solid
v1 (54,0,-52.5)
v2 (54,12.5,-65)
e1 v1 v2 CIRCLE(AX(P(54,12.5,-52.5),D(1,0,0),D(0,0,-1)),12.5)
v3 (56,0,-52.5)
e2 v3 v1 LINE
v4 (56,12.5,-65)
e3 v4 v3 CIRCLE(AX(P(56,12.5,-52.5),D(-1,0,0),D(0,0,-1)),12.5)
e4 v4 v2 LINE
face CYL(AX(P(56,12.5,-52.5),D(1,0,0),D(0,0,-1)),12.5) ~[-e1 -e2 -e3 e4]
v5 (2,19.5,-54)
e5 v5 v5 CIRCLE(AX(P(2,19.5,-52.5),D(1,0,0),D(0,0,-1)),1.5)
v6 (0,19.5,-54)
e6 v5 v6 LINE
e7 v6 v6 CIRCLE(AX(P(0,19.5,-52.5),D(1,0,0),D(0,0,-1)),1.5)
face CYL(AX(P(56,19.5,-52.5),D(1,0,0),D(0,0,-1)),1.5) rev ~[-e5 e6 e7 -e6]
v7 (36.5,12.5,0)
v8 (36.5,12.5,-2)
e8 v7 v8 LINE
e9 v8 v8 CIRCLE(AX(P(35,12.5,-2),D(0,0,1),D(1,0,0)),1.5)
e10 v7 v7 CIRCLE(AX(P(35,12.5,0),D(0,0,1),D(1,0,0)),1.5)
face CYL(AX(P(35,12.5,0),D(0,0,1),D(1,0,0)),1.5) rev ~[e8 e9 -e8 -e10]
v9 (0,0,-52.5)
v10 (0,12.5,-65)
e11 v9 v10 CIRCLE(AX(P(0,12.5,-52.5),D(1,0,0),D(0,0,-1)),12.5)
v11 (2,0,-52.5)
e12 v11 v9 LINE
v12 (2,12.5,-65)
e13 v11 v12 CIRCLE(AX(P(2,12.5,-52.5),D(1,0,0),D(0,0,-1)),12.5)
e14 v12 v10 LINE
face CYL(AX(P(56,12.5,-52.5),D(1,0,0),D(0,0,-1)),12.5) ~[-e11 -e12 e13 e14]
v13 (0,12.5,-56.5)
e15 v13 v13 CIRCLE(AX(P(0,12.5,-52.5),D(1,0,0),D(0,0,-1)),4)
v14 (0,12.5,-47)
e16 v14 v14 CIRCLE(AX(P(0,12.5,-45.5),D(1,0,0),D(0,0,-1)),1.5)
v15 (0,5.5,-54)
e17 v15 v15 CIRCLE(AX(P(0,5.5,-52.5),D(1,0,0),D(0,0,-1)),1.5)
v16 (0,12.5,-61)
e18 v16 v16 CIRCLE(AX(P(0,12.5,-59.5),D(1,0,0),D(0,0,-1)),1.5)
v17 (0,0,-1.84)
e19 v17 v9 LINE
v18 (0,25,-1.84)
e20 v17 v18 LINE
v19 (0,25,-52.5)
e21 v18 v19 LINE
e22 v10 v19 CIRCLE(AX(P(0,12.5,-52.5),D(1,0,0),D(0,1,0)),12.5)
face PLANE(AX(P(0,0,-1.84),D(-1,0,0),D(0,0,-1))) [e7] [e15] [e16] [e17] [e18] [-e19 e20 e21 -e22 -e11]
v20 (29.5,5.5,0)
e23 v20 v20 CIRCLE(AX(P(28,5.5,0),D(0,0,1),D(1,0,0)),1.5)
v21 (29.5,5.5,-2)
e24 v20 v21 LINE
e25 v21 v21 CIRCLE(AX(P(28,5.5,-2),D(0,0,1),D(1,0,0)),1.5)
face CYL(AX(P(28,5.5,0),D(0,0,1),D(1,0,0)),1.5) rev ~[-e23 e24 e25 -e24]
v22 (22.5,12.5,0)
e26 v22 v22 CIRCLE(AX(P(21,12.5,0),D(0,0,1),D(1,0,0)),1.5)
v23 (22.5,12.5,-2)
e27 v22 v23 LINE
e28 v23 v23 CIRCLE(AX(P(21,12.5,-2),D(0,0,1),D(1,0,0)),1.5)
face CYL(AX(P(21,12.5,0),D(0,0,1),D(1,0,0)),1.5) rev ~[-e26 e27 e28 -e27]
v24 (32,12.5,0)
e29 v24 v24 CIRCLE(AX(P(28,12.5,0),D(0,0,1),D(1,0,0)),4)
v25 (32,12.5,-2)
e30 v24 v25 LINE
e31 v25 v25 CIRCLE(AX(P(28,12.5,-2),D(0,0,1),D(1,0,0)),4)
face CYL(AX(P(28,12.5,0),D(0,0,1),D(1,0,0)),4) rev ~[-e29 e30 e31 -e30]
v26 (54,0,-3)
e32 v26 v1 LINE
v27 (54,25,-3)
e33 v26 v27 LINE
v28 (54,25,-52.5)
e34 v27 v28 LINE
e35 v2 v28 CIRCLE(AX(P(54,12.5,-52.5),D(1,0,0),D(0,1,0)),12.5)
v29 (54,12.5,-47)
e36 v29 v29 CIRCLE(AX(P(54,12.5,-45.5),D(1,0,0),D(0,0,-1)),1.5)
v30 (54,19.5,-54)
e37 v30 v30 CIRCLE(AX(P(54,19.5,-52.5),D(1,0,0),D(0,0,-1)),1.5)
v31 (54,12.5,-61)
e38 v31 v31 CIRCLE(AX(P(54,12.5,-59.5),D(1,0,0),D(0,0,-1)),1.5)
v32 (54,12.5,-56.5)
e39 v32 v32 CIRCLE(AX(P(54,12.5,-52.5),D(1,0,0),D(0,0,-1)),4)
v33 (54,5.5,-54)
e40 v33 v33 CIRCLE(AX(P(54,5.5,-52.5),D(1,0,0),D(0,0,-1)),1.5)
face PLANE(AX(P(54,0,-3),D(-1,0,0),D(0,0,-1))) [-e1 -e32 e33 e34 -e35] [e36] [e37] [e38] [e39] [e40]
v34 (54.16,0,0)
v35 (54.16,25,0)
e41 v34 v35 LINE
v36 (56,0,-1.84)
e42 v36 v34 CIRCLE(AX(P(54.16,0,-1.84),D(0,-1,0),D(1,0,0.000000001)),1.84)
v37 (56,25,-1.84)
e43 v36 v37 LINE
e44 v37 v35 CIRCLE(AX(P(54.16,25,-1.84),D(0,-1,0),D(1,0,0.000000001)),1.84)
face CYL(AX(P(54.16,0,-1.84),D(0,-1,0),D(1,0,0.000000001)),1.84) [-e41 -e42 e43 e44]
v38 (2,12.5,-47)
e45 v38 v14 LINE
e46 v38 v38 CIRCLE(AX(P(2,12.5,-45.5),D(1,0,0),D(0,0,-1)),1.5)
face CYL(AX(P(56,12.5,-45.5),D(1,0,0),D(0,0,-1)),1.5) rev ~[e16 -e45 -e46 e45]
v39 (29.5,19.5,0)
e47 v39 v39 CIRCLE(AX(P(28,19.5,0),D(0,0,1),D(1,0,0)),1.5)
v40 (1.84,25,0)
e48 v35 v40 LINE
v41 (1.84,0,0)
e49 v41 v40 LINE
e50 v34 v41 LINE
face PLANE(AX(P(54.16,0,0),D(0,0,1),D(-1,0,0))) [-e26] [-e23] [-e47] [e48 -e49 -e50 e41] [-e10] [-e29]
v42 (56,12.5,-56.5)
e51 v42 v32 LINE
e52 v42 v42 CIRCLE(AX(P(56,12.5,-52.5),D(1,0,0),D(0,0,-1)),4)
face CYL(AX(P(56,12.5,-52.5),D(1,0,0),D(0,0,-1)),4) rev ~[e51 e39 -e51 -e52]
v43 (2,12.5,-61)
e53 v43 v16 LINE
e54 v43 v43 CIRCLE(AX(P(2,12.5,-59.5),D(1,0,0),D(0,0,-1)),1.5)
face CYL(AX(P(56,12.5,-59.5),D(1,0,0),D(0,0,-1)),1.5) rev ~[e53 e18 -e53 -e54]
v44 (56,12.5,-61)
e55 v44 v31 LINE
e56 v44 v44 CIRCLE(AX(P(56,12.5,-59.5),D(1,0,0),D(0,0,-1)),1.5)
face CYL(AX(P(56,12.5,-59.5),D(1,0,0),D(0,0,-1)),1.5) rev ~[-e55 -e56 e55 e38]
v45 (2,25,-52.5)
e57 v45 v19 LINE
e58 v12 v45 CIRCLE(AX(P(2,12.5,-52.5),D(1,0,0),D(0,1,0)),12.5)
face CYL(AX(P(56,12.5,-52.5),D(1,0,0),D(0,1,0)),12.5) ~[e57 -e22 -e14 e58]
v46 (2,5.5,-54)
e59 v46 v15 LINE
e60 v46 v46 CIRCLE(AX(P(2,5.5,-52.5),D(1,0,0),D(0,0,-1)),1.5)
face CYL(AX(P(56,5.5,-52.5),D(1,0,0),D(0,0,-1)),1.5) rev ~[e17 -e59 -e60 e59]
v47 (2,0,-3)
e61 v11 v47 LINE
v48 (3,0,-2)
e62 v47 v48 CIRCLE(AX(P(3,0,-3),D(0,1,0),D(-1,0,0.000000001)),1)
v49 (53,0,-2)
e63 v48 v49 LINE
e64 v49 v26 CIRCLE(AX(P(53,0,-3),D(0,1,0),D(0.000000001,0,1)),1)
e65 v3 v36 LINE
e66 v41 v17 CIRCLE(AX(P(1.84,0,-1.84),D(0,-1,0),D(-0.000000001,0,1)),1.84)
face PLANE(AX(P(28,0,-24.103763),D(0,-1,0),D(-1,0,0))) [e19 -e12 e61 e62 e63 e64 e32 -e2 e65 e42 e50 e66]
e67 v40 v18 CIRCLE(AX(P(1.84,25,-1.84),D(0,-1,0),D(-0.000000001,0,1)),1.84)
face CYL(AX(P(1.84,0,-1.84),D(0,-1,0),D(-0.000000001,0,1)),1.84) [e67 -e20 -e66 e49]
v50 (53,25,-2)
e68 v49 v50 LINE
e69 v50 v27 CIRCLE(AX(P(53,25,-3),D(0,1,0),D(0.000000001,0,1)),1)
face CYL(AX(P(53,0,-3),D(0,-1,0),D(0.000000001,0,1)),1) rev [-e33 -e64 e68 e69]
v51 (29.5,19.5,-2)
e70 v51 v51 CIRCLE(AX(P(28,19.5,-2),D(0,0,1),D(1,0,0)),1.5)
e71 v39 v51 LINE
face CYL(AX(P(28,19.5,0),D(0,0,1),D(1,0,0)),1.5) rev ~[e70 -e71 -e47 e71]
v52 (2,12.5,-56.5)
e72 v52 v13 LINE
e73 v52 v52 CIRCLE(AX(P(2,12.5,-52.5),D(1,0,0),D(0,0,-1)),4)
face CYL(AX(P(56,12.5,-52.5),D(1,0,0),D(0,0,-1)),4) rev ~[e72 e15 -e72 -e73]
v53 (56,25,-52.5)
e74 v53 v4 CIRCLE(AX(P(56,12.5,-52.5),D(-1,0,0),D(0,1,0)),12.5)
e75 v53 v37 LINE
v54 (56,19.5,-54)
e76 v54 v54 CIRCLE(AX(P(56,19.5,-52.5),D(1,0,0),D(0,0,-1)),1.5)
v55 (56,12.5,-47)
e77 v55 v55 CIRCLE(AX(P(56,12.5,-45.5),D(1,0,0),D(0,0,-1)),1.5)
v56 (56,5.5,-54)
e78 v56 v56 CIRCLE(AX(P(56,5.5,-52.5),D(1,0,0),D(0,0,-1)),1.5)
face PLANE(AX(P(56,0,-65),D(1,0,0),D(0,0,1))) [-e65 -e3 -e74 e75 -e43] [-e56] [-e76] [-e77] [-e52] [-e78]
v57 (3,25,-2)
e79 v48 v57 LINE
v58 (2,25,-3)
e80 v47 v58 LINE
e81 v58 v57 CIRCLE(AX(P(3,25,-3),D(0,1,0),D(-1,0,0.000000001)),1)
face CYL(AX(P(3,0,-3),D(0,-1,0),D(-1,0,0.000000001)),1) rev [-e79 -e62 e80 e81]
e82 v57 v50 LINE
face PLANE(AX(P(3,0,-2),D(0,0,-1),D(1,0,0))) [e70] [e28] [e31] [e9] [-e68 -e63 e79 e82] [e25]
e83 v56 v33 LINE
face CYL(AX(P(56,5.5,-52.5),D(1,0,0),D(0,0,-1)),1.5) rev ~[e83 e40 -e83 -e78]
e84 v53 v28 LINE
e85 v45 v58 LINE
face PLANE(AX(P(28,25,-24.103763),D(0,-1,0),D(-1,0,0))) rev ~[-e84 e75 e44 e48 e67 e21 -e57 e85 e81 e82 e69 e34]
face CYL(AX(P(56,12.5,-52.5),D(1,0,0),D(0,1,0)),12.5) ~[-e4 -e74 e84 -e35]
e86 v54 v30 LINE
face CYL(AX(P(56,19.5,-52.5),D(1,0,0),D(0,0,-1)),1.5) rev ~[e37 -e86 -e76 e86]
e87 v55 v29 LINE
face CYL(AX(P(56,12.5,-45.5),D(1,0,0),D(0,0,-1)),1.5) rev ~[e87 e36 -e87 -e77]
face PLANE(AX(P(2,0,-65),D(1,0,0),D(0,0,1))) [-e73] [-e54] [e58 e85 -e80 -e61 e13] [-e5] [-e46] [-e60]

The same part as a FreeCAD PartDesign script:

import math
import FreeCAD as App
import Part
import Sketcher

doc = App.newDocument("Part")
params = doc.addObject("Spreadsheet::Sheet", "Params")
for row, (alias, value) in enumerate([
    ("sketch1_radius", "1 mm"),
    ("sketch1_width", "2 mm"),
    ("sketch1_width2", "50 mm"),
    ("sketch1_height", "62 mm"),
    ("sketch1_radius2", "1.84 mm"),
    ("pad1_length", "25 mm"),
    ("sketch2_diameter", "8 mm"),
    ("sketch2_diameter2", "3 mm"),
    ("pocket1_length", "10 mm"),
    ("sketch3_diameter", "8 mm"),
    ("sketch3_diameter2", "3 mm"),
    ("sketch3_radius", "12.5 mm"),
    ("pocket2_length", "60 mm"),
], start=1):
    params.set(f"A{row}", alias)
    params.set(f"B{row}", "=" + value)
    params.setAlias(f"B{row}", alias)

body = doc.addObject("PartDesign::Body", "Body")

# Sketch on XZ plane
sketch1 = body.newObject("Sketcher::SketchObject", "Sketch")
sketch1.AttachmentSupport = (doc.getObject("XZ_Plane"), [""])
sketch1.MapMode = "FlatFace"
sketch1.addGeometry([
    Part.LineSegment(App.Vector(0, -65, 0), App.Vector(0, -1.84, 0)),  # 0
    Part.ArcOfCircle(Part.Circle(App.Vector(1.84, -1.84, 0), App.Vector(0, 0, 1), 1.84), math.radians(90), math.radians(180)),  # 1
    Part.LineSegment(App.Vector(1.84, 0, 0), App.Vector(54.16, 0, 0)),  # 2
    Part.ArcOfCircle(Part.Circle(App.Vector(54.16, -1.84, 0), App.Vector(0, 0, 1), 1.84), math.radians(0), math.radians(90)),  # 3
    Part.LineSegment(App.Vector(56, -1.84, 0), App.Vector(56, -65, 0)),  # 4
    Part.LineSegment(App.Vector(56, -65, 0), App.Vector(54, -65, 0)),  # 5
    Part.LineSegment(App.Vector(54, -65, 0), App.Vector(54, -3, 0)),  # 6
    Part.ArcOfCircle(Part.Circle(App.Vector(53, -3, 0), App.Vector(0, 0, 1), 1), math.radians(0), math.radians(90)),  # 7
    Part.LineSegment(App.Vector(53, -2, 0), App.Vector(3, -2, 0)),  # 8
    Part.ArcOfCircle(Part.Circle(App.Vector(3, -3, 0), App.Vector(0, 0, 1), 1), math.radians(90), math.radians(180)),  # 9
    Part.LineSegment(App.Vector(2, -3, 0), App.Vector(2, -65, 0)),  # 10
    Part.LineSegment(App.Vector(2, -65, 0), App.Vector(0, -65, 0)),  # 11
], False)
sketch1.addConstraint([
    Sketcher.Constraint("Tangent", 0, 2, 1, 2),
    Sketcher.Constraint("Tangent", 1, 1, 2, 1),
    Sketcher.Constraint("Tangent", 2, 2, 3, 2),
    Sketcher.Constraint("Tangent", 3, 1, 4, 1),
    Sketcher.Constraint("Coincident", 4, 2, 5, 1),
    Sketcher.Constraint("Coincident", 5, 2, 6, 1),
    Sketcher.Constraint("Tangent", 6, 2, 7, 1),
    Sketcher.Constraint("Tangent", 7, 2, 8, 1),
    Sketcher.Constraint("Tangent", 8, 2, 9, 1),
    Sketcher.Constraint("Tangent", 9, 2, 10, 1),
    Sketcher.Constraint("Coincident", 10, 2, 11, 1),
    Sketcher.Constraint("Coincident", 11, 2, 0, 1),
    Sketcher.Constraint("Vertical", 0),
    Sketcher.Constraint("Horizontal", 2),
    Sketcher.Constraint("Vertical", 4),
    Sketcher.Constraint("Horizontal", 5),
    Sketcher.Constraint("Vertical", 6),
    Sketcher.Constraint("Horizontal", 8),
    Sketcher.Constraint("Vertical", 10),
    Sketcher.Constraint("Horizontal", 11),
    Sketcher.Constraint("Equal", 1, 3),
    Sketcher.Constraint("Equal", 7, 9),
    Sketcher.Constraint("PointOnObject", 0, 2, -2),
    Sketcher.Constraint("PointOnObject", 1, 1, -1),
    Sketcher.Constraint("Horizontal", 5, 2, 10, 2),
    Sketcher.Constraint("Equal", 5, 11),
    Sketcher.Constraint("Radius", 7, 1.0),
    Sketcher.Constraint("DistanceX", 5, 2, 5, 1, 2.0),
    Sketcher.Constraint("DistanceX", 8, 2, 8, 1, 50.0),
    Sketcher.Constraint("DistanceY", 6, 1, 6, 2, 62.0),
    Sketcher.Constraint("Radius", 1, 1.84),
    Sketcher.Constraint("DistanceY", 7, 3, -1, 1, 3.0),
])
sketch1.setExpression("Constraints[26]", "Params.sketch1_radius")
sketch1.setExpression("Constraints[27]", "Params.sketch1_width")
sketch1.setExpression("Constraints[28]", "Params.sketch1_width2")
sketch1.setExpression("Constraints[29]", "Params.sketch1_height")
sketch1.setExpression("Constraints[30]", "Params.sketch1_radius2")
pad1 = body.newObject("PartDesign::Pad", "Pad")
pad1.Profile = sketch1
pad1.setExpression("Length", "Params.pad1_length")
pad1.Reversed = True

# Sketch on XY plane
sketch2 = body.newObject("Sketcher::SketchObject", "Sketch001")
sketch2.AttachmentSupport = (doc.getObject("XY_Plane"), [""])
sketch2.MapMode = "FlatFace"
sketch2.addGeometry([
    Part.Circle(App.Vector(28, 12.5, 0), App.Vector(0, 0, 1), 4),  # 0
    Part.Circle(App.Vector(28, 19.5, 0), App.Vector(0, 0, 1), 1.5),  # 1
    Part.Circle(App.Vector(28, 5.5, 0), App.Vector(0, 0, 1), 1.5),  # 2
    Part.Circle(App.Vector(35, 12.5, 0), App.Vector(0, 0, 1), 1.5),  # 3
    Part.Circle(App.Vector(21, 12.5, 0), App.Vector(0, 0, 1), 1.5),  # 4
], False)
sketch2.addConstraint([
    Sketcher.Constraint("Equal", 1, 2),
    Sketcher.Constraint("Equal", 2, 3),
    Sketcher.Constraint("Equal", 3, 4),
    Sketcher.Constraint("Horizontal", 0, 3, 3, 3),
    Sketcher.Constraint("Horizontal", 3, 3, 4, 3),
    Sketcher.Constraint("Vertical", 0, 3, 1, 3),
    Sketcher.Constraint("Vertical", 1, 3, 2, 3),
    Sketcher.Constraint("Diameter", 0, 8.0),
    Sketcher.Constraint("Diameter", 1, 3.0),
    Sketcher.Constraint("DistanceX", -1, 1, 0, 3, 28.0),
    Sketcher.Constraint("DistanceX", -1, 1, 3, 3, 35.0),
    Sketcher.Constraint("DistanceX", -1, 1, 4, 3, 21.0),
    Sketcher.Constraint("DistanceY", 0, 3, 1, 3, 7.0),
    Sketcher.Constraint("DistanceY", 2, 3, 0, 3, 7.0),
    Sketcher.Constraint("DistanceY", -1, 1, 0, 3, 12.5),
])
sketch2.setExpression("Constraints[7]", "Params.sketch2_diameter")
sketch2.setExpression("Constraints[8]", "Params.sketch2_diameter2")
pocket1 = body.newObject("PartDesign::Pocket", "Pocket")
pocket1.Profile = sketch2
pocket1.setExpression("Length", "Params.pocket1_length")

# Sketch on YZ plane
sketch3 = body.newObject("Sketcher::SketchObject", "Sketch002")
sketch3.AttachmentSupport = (doc.getObject("YZ_Plane"), [""])
sketch3.MapMode = "FlatFace"
sketch3.AttachmentOffset = App.Placement(App.Vector(0, 0, 56), App.Rotation())
sketch3.addGeometry([
    Part.LineSegment(App.Vector(25, -65, 0), App.Vector(25, -52.5, 0)),  # 0
    Part.ArcOfCircle(Part.Circle(App.Vector(12.5, -52.5, 0), App.Vector(0, 0, 1), 12.5), math.radians(-90), math.radians(0)),  # 1
    Part.LineSegment(App.Vector(12.5, -65, 0), App.Vector(25, -65, 0)),  # 2
    Part.LineSegment(App.Vector(0, -65, 0), App.Vector(12.5, -65, 0)),  # 3
    Part.ArcOfCircle(Part.Circle(App.Vector(12.5, -52.5, 0), App.Vector(0, 0, 1), 12.5), math.radians(180), math.radians(270)),  # 4
    Part.LineSegment(App.Vector(0, -52.5, 0), App.Vector(0, -65, 0)),  # 5
    Part.Circle(App.Vector(12.5, -52.5, 0), App.Vector(0, 0, 1), 4),  # 6
    Part.Circle(App.Vector(12.5, -45.5, 0), App.Vector(0, 0, 1), 1.5),  # 7
    Part.Circle(App.Vector(19.5, -52.5, 0), App.Vector(0, 0, 1), 1.5),  # 8
    Part.Circle(App.Vector(12.5, -59.5, 0), App.Vector(0, 0, 1), 1.5),  # 9
    Part.Circle(App.Vector(5.5, -52.5, 0), App.Vector(0, 0, 1), 1.5),  # 10
], False)
sketch3.addConstraint([
    Sketcher.Constraint("Tangent", 0, 2, 1, 2),
    Sketcher.Constraint("Tangent", 1, 1, 2, 1),
    Sketcher.Constraint("Coincident", 2, 2, 0, 1),
    Sketcher.Constraint("Tangent", 3, 2, 4, 2),
    Sketcher.Constraint("Tangent", 4, 1, 5, 1),
    Sketcher.Constraint("Coincident", 5, 2, 3, 1),
    Sketcher.Constraint("Vertical", 0),
    Sketcher.Constraint("Horizontal", 2),
    Sketcher.Constraint("Horizontal", 3),
    Sketcher.Constraint("Vertical", 5),
    Sketcher.Constraint("Coincident", 4, 3, 1, 3),
    Sketcher.Constraint("Coincident", 6, 3, 1, 3),
    Sketcher.Constraint("Equal", 1, 4),
    Sketcher.Constraint("Equal", 7, 8),
    Sketcher.Constraint("Equal", 8, 9),
    Sketcher.Constraint("Equal", 9, 10),
    Sketcher.Constraint("PointOnObject", 4, 1, -2),
    Sketcher.Constraint("Horizontal", 6, 3, 8, 3),
    Sketcher.Constraint("Horizontal", 8, 3, 10, 3),
    Sketcher.Constraint("Vertical", 6, 3, 7, 3),
    Sketcher.Constraint("Vertical", 7, 3, 9, 3),
    Sketcher.Constraint("Diameter", 6, 8.0),
    Sketcher.Constraint("Diameter", 7, 3.0),
    Sketcher.Constraint("Radius", 1, 12.5),
    Sketcher.Constraint("DistanceY", 1, 1, -1, 1, 65.0),
    Sketcher.Constraint("DistanceY", 6, 3, 7, 3, 7.0),
    Sketcher.Constraint("DistanceX", 1, 3, 8, 3, 7.0),
    Sketcher.Constraint("DistanceY", 9, 3, 1, 3, 7.0),
    Sketcher.Constraint("DistanceX", 10, 3, 4, 3, 7.0),
])
sketch3.setExpression("Constraints[21]", "Params.sketch3_diameter")
sketch3.setExpression("Constraints[22]", "Params.sketch3_diameter2")
sketch3.setExpression("Constraints[23]", "Params.sketch3_radius")
pocket2 = body.newObject("PartDesign::Pocket", "Pocket001")
pocket2.Profile = sketch3
pocket2.setExpression("Length", "Params.pocket2_length")

doc.recompute()
